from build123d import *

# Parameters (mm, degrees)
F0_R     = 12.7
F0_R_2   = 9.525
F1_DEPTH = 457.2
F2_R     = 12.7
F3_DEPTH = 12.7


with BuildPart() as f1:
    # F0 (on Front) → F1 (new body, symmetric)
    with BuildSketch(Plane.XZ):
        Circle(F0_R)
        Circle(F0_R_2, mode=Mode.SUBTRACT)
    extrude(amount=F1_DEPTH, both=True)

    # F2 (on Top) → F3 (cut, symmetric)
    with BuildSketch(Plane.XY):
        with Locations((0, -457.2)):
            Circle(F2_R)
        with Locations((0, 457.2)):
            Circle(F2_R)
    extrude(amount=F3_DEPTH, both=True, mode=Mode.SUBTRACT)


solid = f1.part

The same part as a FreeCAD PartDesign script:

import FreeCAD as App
import Part
import Sketcher
from FreeCAD import Vector
Q = App.Units.Quantity

doc = App.newDocument("Part")
body = doc.addObject("PartDesign::Body", "Body")

sketch1 = body.newObject("Sketcher::SketchObject", "Sketch")
sketch1.AttachmentSupport = (doc.getObject("XZ_Plane"), [""])
sketch1.MapMode = "FlatFace"
sketch1.addGeometry([
    Part.Circle(Vector(0, 0, 0), Vector(0, 0, 1), 12.7),
    Part.Circle(Vector(0, 0, 0), Vector(0, 0, 1), 9.525),
], False)
sketch1.addConstraint([
    Sketcher.Constraint("Coincident", 0, 3, -1, 1),
    Sketcher.Constraint("Coincident", 1, 3, -1, 1),
    Sketcher.Constraint("Diameter", 0, Q("1 in")),
    Sketcher.Constraint("Diameter", 1, Q("0.75 in")),
])
pad1 = body.newObject("PartDesign::Pad", "Pad")
pad1.Profile = sketch1
pad1.Length = Q("36 in")
pad1.Midplane = True

sketch2 = body.newObject("Sketcher::SketchObject", "Sketch001")
sketch2.AttachmentSupport = (doc.getObject("XY_Plane"), [""])
sketch2.MapMode = "FlatFace"
sketch2.addGeometry([
    Part.Circle(Vector(0, -457.2, 0), Vector(0, 0, 1), 12.7),
    Part.Circle(Vector(0, 457.2, 0), Vector(0, 0, 1), 12.7),
], False)
sketch2.addConstraint([
    Sketcher.Constraint("Equal", 0, 1),
    Sketcher.Constraint("Symmetric", 0, 3, 1, 3, -1, 1),
    Sketcher.Constraint("PointOnObject", 0, 3, -2),
    Sketcher.Constraint("Diameter", 0, Q("1 in")),
    Sketcher.Constraint("DistanceY", 0, 3, -1, 1, Q("18 in")),
])
pocket1 = body.newObject("PartDesign::Pocket", "Pocket")
pocket1.Profile = sketch2
pocket1.Length = Q("1 in")
pocket1.Midplane = True

doc.recompute()
